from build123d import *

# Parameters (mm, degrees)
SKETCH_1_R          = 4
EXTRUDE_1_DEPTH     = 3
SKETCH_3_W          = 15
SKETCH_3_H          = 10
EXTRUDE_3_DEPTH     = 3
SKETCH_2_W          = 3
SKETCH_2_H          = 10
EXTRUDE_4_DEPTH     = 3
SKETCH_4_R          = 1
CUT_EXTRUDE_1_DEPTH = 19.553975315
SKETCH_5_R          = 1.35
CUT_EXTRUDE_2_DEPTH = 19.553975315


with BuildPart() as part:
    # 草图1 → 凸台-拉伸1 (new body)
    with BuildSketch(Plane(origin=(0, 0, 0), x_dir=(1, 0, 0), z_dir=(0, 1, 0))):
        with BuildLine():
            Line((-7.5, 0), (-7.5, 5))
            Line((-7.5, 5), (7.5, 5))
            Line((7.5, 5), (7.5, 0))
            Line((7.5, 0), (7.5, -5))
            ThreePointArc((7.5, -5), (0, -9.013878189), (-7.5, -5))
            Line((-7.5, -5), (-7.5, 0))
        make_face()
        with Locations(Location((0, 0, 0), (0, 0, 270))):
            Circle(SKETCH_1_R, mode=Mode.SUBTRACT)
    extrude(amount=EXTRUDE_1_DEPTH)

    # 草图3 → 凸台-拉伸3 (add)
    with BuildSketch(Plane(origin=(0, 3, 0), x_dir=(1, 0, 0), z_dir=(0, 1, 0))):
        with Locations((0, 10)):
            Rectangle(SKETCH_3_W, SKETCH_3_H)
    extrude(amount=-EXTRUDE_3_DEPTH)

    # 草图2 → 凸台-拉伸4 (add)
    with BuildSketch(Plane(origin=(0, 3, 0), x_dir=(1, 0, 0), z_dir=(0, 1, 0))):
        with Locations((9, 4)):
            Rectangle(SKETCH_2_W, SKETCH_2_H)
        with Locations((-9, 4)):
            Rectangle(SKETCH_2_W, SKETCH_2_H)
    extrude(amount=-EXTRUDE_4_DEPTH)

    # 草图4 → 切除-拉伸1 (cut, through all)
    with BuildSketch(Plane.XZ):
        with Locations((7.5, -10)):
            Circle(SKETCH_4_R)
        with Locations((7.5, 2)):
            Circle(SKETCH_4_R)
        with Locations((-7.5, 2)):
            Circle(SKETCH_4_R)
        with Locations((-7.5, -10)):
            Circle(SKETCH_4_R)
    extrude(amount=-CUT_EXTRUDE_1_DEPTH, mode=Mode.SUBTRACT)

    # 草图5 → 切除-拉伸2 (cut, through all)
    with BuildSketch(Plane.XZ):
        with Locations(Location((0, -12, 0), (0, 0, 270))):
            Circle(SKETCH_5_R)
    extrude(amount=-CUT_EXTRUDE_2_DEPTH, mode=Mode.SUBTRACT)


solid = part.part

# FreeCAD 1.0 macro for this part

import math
import FreeCAD as App
import Part
import Sketcher

V = App.Vector
Q = App.Units.Quantity

doc = App.newDocument("Part")
params = doc.addObject("Spreadsheet::Sheet", "Params")
for row, (alias, value) in enumerate([
    ("sketch1_diameter", "8 mm"),
    ("sketch1_width", "15 mm"),
    ("sketch1_height", "10 mm"),
    ("pad1_length", "3 mm"),
    ("sketch2_width", "15 mm"),
    ("sketch2_height", "10 mm"),
    ("pad2_length", "3 mm"),
    ("sketch3_width", "3 mm"),
    ("sketch3_height", "10 mm"),
    ("pad3_length", "3 mm"),
    ("sketch4_diameter", "2 mm"),
    ("sketch5_diameter", "2.7 mm"),
], start=1):
    params.set(f"A{row}", alias)
    params.set(f"B{row}", "=" + value)
    params.setAlias(f"B{row}", alias)

body = doc.addObject("PartDesign::Body", "Body")

sketch1 = body.newObject("Sketcher::SketchObject", "Sketch")
sketch1.AttachmentSupport = (doc.getObject("XZ_Plane"), [""])
sketch1.MapMode = "FlatFace"
sketch1.addGeometry([
    Part.LineSegment(V(7.5, -5, 0), V(-7.5, -5, 0)),
    Part.LineSegment(V(-7.5, -5, 0), V(-7.5, 5, 0)),
    Part.ArcOfCircle(Part.Circle(V(0, 0, 0), V(0, 0, 1), 9), math.radians(34), math.radians(146)),
    Part.LineSegment(V(7.5, 5, 0), V(7.5, -5, 0)),
    Part.Circle(V(0, 0, 0), V(0, 0, 1), 4),
], False)
sketch1.addConstraint([
    Sketcher.Constraint("Coincident", 0, 2, 1, 1),
    Sketcher.Constraint("Coincident", 1, 2, 2, 2),
    Sketcher.Constraint("Coincident", 2, 1, 3, 1),
    Sketcher.Constraint("Coincident", 3, 2, 0, 1),
    Sketcher.Constraint("Horizontal", 0),
    Sketcher.Constraint("Vertical", 1),
    Sketcher.Constraint("Vertical", 3),
    Sketcher.Constraint("Coincident", 2, 3, -1, 1),
    Sketcher.Constraint("Coincident", 4, 3, -1, 1),
    Sketcher.Constraint("Symmetric", 0, 2, 2, 1, -1, 1),
    Sketcher.Constraint("Diameter", 4, Q("8 mm")),
    Sketcher.Constraint("DistanceX", 0, 2, 0, 1, Q("15 mm")),
    Sketcher.Constraint("DistanceY", 1, 1, 1, 2, Q("10 mm")),
])
sketch1.setExpression("Constraints[10]", "Params.sketch1_diameter")
sketch1.setExpression("Constraints[11]", "Params.sketch1_width")
sketch1.setExpression("Constraints[12]", "Params.sketch1_height")
pad1 = body.newObject("PartDesign::Pad", "Pad")
pad1.Profile = sketch1
pad1.setExpression("Length", "Params.pad1_length")
pad1.Reversed = True

sketch2 = body.newObject("Sketcher::SketchObject", "Sketch001")
sketch2.AttachmentSupport = (doc.getObject("XZ_Plane"), [""])
sketch2.MapMode = "FlatFace"
sketch2.AttachmentOffset = App.Placement(V(0, 0, -3), App.Rotation())
sketch2.addGeometry([
    Part.LineSegment(V(-8, -15, 0), V(-8, -5, 0)),
    Part.LineSegment(V(-8, -5, 0), V(8, -5, 0)),
    Part.LineSegment(V(8, -5, 0), V(8, -15, 0)),
    Part.LineSegment(V(8, -15, 0), V(-8, -15, 0)),
], False)
sketch2.addConstraint([
    Sketcher.Constraint("Coincident", 0, 2, 1, 1),
    Sketcher.Constraint("Coincident", 1, 2, 2, 1),
    Sketcher.Constraint("Coincident", 2, 2, 3, 1),
    Sketcher.Constraint("Coincident", 3, 2, 0, 1),
    Sketcher.Constraint("Vertical", 0),
    Sketcher.Constraint("Horizontal", 1),
    Sketcher.Constraint("Vertical", 2),
    Sketcher.Constraint("Horizontal", 3),
    Sketcher.Constraint("DistanceX", 1, 1, 1, 2, Q("15 mm")),
    Sketcher.Constraint("DistanceY", 0, 1, 0, 2, Q("10 mm")),
    Sketcher.Constraint("DistanceY", 0, 2, -1, 1, Q("5 mm")),
    Sketcher.Constraint("DistanceX", 0, 2, -1, 1, Q("7.5 mm")),
])
sketch2.setExpression("Constraints[8]", "Params.sketch2_width")
sketch2.setExpression("Constraints[9]", "Params.sketch2_height")
pad2 = body.newObject("PartDesign::Pad", "Pad001")
pad2.Profile = sketch2
pad2.setExpression("Length", "Params.pad2_length")

sketch3 = body.newObject("Sketcher::SketchObject", "Sketch002")
sketch3.AttachmentSupport = (doc.getObject("XZ_Plane"), [""])
sketch3.MapMode = "FlatFace"
sketch3.AttachmentOffset = App.Placement(V(0, 0, -3), App.Rotation())
sketch3.addGeometry([
    Part.LineSegment(V(7.5, -9, 0), V(7.5, 1, 0)),
    Part.LineSegment(V(7.5, 1, 0), V(10.5, 1, 0)),
    Part.LineSegment(V(10.5, 1, 0), V(10.5, -9, 0)),
    Part.LineSegment(V(10.5, -9, 0), V(7.5, -9, 0)),
    Part.LineSegment(V(-10.5, -9, 0), V(-10.5, 1, 0)),
    Part.LineSegment(V(-10.5, 1, 0), V(-7.5, 1, 0)),
    Part.LineSegment(V(-7.5, 1, 0), V(-7.5, -9, 0)),
    Part.LineSegment(V(-7.5, -9, 0), V(-10.5, -9, 0)),
], False)
sketch3.addConstraint([
    Sketcher.Constraint("Coincident", 0, 2, 1, 1),
    Sketcher.Constraint("Coincident", 1, 2, 2, 1),
    Sketcher.Constraint("Coincident", 2, 2, 3, 1),
    Sketcher.Constraint("Coincident", 3, 2, 0, 1),
    Sketcher.Constraint("Coincident", 4, 2, 5, 1),
    Sketcher.Constraint("Coincident", 5, 2, 6, 1),
    Sketcher.Constraint("Coincident", 6, 2, 7, 1),
    Sketcher.Constraint("Coincident", 7, 2, 4, 1),
    Sketcher.Constraint("Vertical", 0),
    Sketcher.Constraint("Horizontal", 1),
    Sketcher.Constraint("Vertical", 2),
    Sketcher.Constraint("Horizontal", 3),
    Sketcher.Constraint("Vertical", 4),
    Sketcher.Constraint("Horizontal", 5),
    Sketcher.Constraint("Vertical", 6),
    Sketcher.Constraint("Horizontal", 7),
    Sketcher.Constraint("Symmetric", 1, 2, 4, 2, -2),
    Sketcher.Constraint("Symmetric", 3, 2, 6, 2, -2),
    Sketcher.Constraint("DistanceX", 1, 1, 1, 2, Q("3 mm")),
    Sketcher.Constraint("DistanceY", 0, 1, 0, 2, Q("10 mm")),
    Sketcher.Constraint("DistanceY", -1, 1, 0, 2, Q("1 mm")),
    Sketcher.Constraint("DistanceX", 4, 2, 0, 2, Q("18 mm")),
])
sketch3.setExpression("Constraints[18]", "Params.sketch3_width")
sketch3.setExpression("Constraints[19]", "Params.sketch3_height")
pad3 = body.newObject("PartDesign::Pad", "Pad002")
pad3.Profile = sketch3
pad3.setExpression("Length", "Params.pad3_length")

sketch4 = body.newObject("Sketcher::SketchObject", "Sketch003")
sketch4.AttachmentSupport = (doc.getObject("XZ_Plane"), [""])
sketch4.MapMode = "FlatFace"
sketch4.addGeometry([
    Part.Circle(V(7.5, -10, 0), V(0, 0, 1), 1),
    Part.Circle(V(7.5, 2, 0), V(0, 0, 1), 1),
    Part.Circle(V(-7.5, 2, 0), V(0, 0, 1), 1),
    Part.Circle(V(-7.5, -10, 0), V(0, 0, 1), 1),
], False)
sketch4.addConstraint([
    Sketcher.Constraint("Equal", 0, 1),
    Sketcher.Constraint("Equal", 1, 2),
    Sketcher.Constraint("Equal", 2, 3),
    Sketcher.Constraint("Symmetric", 1, 3, 2, 3, -2),
    Sketcher.Constraint("Symmetric", 0, 3, 3, 3, -2),
    Sketcher.Constraint("Vertical", 0, 3, 1, 3),
    Sketcher.Constraint("Diameter", 0, Q("2 mm")),
    Sketcher.Constraint("DistanceY", 0, 3, -1, 1, Q("10 mm")),
    Sketcher.Constraint("DistanceY", -1, 1, 1, 3, Q("2 mm")),
    Sketcher.Constraint("DistanceX", 2, 3, 1, 3, Q("15 mm")),
])
sketch4.setExpression("Constraints[6]", "Params.sketch4_diameter")
pocket1 = body.newObject("PartDesign::Pocket", "Pocket")
pocket1.Profile = sketch4
pocket1.Type = "ThroughAll"

sketch5 = body.newObject("Sketcher::SketchObject", "Sketch004")
sketch5.AttachmentSupport = (doc.getObject("XZ_Plane"), [""])
sketch5.MapMode = "FlatFace"
sketch5.addGeometry(Part.Circle(V(0, -12, 0), V(0, 0, 1), 1.4), False)
sketch5.addConstraint([
    Sketcher.Constraint("PointOnObject", 0, 3, -2),
    Sketcher.Constraint("Diameter", 0, Q("2.7 mm")),
    Sketcher.Constraint("DistanceY", 0, 3, -1, 1, Q("12 mm")),
])
sketch5.setExpression("Constraints[1]", "Params.sketch5_diameter")
pocket2 = body.newObject("PartDesign::Pocket", "Pocket001")
pocket2.Profile = sketch5
pocket2.Type = "ThroughAll"

doc.recompute()
